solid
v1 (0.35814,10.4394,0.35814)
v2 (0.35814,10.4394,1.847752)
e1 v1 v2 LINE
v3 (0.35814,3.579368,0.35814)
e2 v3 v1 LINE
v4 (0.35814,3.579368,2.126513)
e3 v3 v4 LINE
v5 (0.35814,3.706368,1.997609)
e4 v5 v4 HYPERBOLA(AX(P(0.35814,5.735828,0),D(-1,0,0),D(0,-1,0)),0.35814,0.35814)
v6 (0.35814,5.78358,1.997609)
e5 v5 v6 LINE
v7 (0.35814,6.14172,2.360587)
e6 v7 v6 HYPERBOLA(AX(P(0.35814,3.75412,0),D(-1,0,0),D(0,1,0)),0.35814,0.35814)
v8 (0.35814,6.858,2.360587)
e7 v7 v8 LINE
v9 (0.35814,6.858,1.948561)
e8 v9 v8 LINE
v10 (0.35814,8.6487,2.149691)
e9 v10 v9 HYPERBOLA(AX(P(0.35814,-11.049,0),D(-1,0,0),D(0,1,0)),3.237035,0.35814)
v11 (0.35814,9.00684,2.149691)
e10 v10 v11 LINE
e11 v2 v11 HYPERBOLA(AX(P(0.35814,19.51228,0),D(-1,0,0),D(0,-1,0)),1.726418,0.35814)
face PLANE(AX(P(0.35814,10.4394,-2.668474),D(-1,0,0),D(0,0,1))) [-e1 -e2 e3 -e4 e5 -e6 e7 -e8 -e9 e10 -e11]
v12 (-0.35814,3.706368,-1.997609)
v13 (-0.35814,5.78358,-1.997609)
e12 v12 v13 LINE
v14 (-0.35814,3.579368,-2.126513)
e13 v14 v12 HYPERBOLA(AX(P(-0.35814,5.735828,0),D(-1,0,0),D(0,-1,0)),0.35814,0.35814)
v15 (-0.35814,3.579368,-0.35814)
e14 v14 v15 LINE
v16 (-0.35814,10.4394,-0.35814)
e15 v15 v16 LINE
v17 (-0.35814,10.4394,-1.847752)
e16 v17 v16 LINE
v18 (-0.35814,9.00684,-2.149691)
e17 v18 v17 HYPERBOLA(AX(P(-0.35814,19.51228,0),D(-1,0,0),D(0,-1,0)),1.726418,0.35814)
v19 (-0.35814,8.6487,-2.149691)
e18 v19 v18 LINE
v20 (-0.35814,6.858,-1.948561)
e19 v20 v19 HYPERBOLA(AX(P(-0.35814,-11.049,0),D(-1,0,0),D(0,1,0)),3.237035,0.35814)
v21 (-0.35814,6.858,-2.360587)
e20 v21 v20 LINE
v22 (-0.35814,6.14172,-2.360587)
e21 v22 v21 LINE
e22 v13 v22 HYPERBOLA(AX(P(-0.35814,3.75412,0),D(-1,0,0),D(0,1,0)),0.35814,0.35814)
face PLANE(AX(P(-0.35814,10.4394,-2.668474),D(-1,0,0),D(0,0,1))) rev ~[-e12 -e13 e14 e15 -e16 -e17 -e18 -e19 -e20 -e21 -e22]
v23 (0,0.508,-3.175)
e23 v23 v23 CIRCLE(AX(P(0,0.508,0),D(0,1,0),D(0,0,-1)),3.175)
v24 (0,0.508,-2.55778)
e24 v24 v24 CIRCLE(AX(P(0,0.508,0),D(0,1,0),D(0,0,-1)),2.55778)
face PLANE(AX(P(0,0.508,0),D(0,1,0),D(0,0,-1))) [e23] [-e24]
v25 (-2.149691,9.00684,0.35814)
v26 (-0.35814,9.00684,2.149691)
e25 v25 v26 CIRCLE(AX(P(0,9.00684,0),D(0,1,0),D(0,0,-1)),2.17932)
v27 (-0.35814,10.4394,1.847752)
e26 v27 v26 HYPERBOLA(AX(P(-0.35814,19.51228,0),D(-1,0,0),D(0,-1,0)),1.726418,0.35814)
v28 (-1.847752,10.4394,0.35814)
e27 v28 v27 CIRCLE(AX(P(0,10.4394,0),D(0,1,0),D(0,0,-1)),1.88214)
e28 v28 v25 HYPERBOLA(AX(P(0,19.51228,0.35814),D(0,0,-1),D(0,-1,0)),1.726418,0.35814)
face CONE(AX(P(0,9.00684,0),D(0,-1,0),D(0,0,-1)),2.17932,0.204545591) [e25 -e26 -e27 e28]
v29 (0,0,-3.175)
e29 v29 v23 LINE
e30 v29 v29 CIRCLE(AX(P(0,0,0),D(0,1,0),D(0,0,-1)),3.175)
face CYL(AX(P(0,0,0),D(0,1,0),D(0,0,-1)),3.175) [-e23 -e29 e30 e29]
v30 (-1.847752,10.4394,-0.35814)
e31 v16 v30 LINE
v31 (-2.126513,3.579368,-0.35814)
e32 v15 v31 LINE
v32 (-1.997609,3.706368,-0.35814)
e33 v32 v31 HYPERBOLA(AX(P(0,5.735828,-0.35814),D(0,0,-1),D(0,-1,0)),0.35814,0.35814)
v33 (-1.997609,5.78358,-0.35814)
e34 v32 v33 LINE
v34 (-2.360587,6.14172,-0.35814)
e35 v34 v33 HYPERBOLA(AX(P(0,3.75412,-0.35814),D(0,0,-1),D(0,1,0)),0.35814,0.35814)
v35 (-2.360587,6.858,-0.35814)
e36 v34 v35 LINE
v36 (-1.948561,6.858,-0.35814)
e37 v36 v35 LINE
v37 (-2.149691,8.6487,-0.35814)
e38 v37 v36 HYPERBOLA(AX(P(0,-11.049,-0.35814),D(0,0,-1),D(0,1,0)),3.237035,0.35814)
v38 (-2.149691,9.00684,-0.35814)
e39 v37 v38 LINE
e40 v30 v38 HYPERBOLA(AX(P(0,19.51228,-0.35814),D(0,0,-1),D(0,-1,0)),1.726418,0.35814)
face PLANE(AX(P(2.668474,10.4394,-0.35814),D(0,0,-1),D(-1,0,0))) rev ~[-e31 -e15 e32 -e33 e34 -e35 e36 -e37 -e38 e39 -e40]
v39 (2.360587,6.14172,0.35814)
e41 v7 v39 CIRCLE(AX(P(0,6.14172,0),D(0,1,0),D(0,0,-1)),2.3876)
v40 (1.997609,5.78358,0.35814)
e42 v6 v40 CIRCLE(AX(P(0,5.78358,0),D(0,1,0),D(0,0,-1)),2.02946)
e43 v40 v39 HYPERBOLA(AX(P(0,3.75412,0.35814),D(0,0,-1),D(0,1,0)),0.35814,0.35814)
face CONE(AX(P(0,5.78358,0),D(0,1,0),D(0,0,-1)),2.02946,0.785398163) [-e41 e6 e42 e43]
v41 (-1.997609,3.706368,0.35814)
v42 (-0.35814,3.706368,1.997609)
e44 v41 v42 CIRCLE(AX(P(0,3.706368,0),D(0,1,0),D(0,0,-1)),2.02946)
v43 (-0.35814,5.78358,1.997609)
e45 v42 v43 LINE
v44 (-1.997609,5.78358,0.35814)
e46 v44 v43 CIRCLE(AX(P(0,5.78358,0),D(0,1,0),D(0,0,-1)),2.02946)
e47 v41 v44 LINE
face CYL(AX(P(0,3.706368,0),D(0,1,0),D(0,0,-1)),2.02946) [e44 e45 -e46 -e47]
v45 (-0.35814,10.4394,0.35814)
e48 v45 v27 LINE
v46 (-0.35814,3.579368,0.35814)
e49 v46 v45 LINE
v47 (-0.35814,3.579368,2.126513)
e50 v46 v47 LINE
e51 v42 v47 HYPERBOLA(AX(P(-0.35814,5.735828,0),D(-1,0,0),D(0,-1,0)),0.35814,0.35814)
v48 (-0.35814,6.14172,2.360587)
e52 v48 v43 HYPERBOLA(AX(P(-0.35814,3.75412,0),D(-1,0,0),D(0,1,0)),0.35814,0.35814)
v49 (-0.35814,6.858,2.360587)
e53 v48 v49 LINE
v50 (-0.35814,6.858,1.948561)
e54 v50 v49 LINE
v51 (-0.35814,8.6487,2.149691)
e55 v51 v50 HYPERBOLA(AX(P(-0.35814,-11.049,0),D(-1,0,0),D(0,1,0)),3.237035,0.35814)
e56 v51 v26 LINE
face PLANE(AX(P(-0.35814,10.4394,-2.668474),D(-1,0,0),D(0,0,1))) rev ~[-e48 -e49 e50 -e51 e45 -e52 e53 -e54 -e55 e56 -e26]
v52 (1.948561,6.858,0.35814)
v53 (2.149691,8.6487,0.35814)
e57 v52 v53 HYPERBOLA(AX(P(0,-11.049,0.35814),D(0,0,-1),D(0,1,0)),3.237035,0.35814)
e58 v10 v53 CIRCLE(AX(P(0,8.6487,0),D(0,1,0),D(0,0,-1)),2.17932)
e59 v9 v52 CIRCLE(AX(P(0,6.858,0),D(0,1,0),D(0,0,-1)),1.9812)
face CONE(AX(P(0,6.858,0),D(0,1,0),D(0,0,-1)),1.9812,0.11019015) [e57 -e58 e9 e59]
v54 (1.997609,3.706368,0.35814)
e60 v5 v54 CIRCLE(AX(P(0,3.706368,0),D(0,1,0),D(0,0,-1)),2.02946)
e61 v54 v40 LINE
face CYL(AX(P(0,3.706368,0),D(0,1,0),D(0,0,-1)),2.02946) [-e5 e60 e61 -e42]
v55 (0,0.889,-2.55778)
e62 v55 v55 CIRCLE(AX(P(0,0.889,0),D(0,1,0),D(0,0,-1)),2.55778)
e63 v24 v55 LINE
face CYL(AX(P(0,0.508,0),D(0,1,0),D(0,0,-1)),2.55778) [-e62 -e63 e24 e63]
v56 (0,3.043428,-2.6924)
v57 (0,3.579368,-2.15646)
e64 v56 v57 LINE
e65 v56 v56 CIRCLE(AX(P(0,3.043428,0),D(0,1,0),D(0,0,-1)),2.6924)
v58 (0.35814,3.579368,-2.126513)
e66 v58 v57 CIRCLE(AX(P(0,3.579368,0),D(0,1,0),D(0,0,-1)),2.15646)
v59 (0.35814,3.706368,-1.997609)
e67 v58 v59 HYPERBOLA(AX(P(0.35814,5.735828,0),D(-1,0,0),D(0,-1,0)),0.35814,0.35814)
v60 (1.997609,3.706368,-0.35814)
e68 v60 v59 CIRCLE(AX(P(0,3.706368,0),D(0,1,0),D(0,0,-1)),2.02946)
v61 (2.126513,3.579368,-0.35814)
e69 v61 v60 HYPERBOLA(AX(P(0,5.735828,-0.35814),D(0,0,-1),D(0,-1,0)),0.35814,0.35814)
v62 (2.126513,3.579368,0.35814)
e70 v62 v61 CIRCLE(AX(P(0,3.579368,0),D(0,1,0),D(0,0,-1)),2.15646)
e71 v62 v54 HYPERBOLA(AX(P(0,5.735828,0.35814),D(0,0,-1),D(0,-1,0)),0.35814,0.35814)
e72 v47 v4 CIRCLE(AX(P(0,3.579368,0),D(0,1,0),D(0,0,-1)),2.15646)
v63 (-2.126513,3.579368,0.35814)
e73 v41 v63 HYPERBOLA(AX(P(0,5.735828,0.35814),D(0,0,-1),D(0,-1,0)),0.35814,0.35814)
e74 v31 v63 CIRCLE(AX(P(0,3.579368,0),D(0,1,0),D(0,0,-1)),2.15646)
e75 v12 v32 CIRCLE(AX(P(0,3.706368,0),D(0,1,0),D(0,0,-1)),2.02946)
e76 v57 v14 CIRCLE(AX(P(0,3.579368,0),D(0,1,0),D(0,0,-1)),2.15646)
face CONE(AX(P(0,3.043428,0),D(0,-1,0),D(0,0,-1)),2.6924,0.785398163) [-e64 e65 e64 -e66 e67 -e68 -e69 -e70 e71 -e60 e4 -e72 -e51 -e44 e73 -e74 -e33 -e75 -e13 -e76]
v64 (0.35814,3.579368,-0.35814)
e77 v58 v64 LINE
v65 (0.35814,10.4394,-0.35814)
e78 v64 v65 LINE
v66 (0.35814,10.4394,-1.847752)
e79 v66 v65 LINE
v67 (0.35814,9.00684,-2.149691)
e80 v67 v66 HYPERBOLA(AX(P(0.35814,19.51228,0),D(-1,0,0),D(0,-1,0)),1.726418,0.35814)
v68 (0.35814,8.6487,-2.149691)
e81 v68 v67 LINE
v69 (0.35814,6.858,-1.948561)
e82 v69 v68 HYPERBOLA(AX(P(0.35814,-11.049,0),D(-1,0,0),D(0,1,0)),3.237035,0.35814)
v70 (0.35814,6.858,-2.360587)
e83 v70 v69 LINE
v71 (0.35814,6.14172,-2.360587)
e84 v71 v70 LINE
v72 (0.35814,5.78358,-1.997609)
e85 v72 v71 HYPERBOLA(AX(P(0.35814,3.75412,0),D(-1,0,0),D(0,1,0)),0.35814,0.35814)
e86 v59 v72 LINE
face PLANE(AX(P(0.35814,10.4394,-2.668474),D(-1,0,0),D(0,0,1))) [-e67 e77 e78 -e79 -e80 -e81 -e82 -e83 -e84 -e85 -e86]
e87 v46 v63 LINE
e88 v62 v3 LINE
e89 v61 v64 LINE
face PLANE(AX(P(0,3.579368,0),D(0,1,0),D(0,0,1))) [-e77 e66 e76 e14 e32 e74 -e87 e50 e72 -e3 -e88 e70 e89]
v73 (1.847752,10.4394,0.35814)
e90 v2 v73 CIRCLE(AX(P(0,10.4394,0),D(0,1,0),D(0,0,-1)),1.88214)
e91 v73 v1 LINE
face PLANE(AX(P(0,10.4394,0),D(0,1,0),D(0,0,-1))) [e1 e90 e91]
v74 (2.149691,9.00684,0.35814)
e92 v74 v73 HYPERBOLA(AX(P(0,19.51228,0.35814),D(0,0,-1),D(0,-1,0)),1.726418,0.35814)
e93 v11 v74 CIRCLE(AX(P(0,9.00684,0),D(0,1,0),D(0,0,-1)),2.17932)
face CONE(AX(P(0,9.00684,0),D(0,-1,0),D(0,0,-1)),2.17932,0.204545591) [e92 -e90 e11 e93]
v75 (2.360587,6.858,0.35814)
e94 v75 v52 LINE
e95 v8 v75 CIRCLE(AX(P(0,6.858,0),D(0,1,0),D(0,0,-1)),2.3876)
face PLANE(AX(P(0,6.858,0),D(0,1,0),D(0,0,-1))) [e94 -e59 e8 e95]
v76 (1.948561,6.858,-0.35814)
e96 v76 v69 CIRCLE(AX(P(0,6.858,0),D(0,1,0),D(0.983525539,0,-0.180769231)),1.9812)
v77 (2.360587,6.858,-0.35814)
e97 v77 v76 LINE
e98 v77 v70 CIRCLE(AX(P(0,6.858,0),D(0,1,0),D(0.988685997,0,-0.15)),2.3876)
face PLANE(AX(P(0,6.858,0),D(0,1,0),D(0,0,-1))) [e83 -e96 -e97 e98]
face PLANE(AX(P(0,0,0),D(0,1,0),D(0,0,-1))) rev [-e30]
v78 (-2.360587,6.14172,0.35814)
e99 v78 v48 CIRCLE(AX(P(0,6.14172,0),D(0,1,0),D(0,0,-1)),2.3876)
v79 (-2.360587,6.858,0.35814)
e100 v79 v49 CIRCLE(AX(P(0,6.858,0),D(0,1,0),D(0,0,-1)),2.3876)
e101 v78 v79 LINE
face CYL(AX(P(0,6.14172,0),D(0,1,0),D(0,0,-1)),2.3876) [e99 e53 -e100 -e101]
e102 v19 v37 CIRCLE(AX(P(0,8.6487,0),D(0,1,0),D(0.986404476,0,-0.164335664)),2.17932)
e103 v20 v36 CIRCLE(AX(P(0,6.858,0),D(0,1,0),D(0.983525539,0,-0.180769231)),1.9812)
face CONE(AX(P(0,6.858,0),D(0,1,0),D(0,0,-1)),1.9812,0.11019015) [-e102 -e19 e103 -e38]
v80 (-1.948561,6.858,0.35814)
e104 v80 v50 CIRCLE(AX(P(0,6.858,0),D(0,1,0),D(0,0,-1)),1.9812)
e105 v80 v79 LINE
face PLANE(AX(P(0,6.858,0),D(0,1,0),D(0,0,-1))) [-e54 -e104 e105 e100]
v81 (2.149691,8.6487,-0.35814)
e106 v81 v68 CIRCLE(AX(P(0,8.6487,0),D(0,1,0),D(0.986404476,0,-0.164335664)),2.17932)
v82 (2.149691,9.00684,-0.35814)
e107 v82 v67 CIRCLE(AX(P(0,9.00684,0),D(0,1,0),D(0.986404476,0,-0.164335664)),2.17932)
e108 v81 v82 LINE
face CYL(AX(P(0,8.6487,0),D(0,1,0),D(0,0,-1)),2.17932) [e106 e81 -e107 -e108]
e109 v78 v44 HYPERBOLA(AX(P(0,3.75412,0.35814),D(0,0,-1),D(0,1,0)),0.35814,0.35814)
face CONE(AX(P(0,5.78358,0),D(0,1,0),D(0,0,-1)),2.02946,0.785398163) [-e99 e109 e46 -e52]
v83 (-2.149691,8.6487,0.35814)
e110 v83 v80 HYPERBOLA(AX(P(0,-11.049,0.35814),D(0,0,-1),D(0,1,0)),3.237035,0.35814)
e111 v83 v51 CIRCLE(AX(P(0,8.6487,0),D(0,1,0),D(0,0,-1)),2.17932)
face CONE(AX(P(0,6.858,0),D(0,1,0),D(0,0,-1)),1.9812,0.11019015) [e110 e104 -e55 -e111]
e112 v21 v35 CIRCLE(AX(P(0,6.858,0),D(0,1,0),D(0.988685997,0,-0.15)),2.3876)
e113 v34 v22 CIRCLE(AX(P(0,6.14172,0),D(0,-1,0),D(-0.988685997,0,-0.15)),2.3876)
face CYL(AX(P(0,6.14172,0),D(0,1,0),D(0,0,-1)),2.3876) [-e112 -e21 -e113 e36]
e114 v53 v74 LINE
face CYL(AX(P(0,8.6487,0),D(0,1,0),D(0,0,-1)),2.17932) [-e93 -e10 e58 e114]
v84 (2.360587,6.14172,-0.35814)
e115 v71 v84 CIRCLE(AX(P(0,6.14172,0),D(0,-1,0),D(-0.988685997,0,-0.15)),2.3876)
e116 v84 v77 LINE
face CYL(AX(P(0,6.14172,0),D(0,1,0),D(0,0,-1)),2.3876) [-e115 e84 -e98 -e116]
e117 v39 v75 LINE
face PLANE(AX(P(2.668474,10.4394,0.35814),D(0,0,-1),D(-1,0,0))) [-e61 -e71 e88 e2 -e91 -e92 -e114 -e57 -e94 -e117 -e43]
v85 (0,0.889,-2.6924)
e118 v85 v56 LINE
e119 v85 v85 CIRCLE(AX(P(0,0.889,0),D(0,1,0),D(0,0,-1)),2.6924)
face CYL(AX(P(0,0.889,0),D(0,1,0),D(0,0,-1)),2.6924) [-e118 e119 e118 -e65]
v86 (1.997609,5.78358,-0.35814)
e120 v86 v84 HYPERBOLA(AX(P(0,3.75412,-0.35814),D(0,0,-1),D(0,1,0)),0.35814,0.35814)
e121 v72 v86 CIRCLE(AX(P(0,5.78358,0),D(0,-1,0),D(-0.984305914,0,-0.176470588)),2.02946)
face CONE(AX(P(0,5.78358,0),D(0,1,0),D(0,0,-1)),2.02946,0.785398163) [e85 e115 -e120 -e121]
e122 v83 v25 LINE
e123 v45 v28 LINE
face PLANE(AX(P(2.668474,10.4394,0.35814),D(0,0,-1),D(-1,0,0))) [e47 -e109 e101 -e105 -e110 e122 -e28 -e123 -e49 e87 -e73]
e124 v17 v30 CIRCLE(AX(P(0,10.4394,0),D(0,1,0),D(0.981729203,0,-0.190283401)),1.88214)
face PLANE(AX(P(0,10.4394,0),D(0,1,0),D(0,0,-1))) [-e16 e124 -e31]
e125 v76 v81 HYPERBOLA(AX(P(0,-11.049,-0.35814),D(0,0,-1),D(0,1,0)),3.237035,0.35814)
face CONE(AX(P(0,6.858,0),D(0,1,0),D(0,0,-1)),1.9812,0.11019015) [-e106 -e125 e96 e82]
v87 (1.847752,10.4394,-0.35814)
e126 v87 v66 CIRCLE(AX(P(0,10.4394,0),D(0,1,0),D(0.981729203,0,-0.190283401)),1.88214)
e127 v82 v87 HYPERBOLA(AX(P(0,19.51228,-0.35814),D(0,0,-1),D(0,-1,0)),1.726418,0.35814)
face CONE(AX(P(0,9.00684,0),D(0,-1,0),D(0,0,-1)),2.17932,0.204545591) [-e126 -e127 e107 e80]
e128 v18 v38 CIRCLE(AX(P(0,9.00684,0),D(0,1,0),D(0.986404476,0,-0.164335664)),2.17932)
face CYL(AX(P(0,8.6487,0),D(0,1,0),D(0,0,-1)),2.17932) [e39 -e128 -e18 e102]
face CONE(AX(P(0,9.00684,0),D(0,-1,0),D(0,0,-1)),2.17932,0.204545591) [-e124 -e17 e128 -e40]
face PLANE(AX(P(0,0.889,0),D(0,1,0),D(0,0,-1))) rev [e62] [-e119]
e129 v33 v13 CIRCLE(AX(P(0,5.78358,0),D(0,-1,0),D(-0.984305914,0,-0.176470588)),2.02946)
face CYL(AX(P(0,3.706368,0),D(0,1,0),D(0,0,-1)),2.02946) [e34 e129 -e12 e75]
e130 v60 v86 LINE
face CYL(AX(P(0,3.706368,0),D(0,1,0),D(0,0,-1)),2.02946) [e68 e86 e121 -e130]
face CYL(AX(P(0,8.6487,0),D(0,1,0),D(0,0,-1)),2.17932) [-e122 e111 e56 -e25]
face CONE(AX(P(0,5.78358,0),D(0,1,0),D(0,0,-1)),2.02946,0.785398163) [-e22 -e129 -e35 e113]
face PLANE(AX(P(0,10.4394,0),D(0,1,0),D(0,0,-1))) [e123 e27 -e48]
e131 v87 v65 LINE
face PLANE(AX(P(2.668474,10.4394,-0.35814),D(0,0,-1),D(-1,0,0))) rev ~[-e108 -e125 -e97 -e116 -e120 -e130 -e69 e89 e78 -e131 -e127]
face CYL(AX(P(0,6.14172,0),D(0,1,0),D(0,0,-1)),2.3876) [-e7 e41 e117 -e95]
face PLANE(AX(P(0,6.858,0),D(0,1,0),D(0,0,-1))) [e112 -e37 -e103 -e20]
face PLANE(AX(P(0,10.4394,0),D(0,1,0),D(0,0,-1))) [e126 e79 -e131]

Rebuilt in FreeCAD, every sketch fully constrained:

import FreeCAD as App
import Part
import Sketcher
from FreeCAD import Vector
Q = App.Units.Quantity

doc = App.newDocument("Part")
body = doc.addObject("PartDesign::Body", "Body")

# Sketch on XY plane
sketch1 = body.newObject("Sketcher::SketchObject", "Sketch")
sketch1.AttachmentSupport = (doc.getObject("XY_Plane"), [""])
sketch1.MapMode = "FlatFace"
sketch1.addGeometry(Part.LineSegment(Vector(2.56, 0.51, 0), Vector(2.56, 0.89, 0)), False)
sketch1.addGeometry(Part.LineSegment(Vector(2.56, 0.89, 0), Vector(2.69, 0.89, 0)), False)
sketch1.addGeometry(Part.LineSegment(Vector(2.69, 0.89, 0), Vector(2.69, 3.04, 0)), False)
sketch1.addGeometry(Part.LineSegment(Vector(2.69, 3.04, 0), Vector(2.03, 3.71, 0)), False)
sketch1.addGeometry(Part.LineSegment(Vector(2.03, 3.71, 0), Vector(2.03, 5.78, 0)), False)
sketch1.addGeometry(Part.LineSegment(Vector(2.03, 5.78, 0), Vector(2.39, 6.14, 0)), False)
sketch1.addGeometry(Part.LineSegment(Vector(2.39, 6.14, 0), Vector(2.39, 6.86, 0)), False)
sketch1.addGeometry(Part.LineSegment(Vector(2.39, 6.86, 0), Vector(1.98, 6.86, 0)), False)
sketch1.addGeometry(Part.LineSegment(Vector(1.98, 6.86, 0), Vector(2.18, 8.65, 0)), False)
sketch1.addGeometry(Part.LineSegment(Vector(2.18, 8.65, 0), Vector(2.18, 9.01, 0)), False)
sketch1.addGeometry(Part.LineSegment(Vector(2.18, 9.01, 0), Vector(1.88, 10.44, 0)), False)
sketch1.addGeometry(Part.LineSegment(Vector(1.88, 10.44, 0), Vector(0, 10.44, 0)), False)
sketch1.addGeometry(Part.LineSegment(Vector(0, 10.44, 0), Vector(0, 0, 0)), False)
sketch1.addGeometry(Part.LineSegment(Vector(0, 0, 0), Vector(3.17, 0, 0)), False)
sketch1.addGeometry(Part.LineSegment(Vector(3.17, 0, 0), Vector(3.17, 0.51, 0)), False)
sketch1.addGeometry(Part.LineSegment(Vector(3.17, 0.51, 0), Vector(2.56, 0.51, 0)), False)
sketch1.addConstraint(Sketcher.Constraint("Coincident", 0, 2, 1, 1))
sketch1.addConstraint(Sketcher.Constraint("Coincident", 1, 2, 2, 1))
sketch1.addConstraint(Sketcher.Constraint("Coincident", 2, 2, 3, 1))
sketch1.addConstraint(Sketcher.Constraint("Coincident", 3, 2, 4, 1))
sketch1.addConstraint(Sketcher.Constraint("Coincident", 4, 2, 5, 1))
sketch1.addConstraint(Sketcher.Constraint("Coincident", 5, 2, 6, 1))
sketch1.addConstraint(Sketcher.Constraint("Coincident", 6, 2, 7, 1))
sketch1.addConstraint(Sketcher.Constraint("Coincident", 7, 2, 8, 1))
sketch1.addConstraint(Sketcher.Constraint("Coincident", 8, 2, 9, 1))
sketch1.addConstraint(Sketcher.Constraint("Coincident", 9, 2, 10, 1))
sketch1.addConstraint(Sketcher.Constraint("Coincident", 10, 2, 11, 1))
sketch1.addConstraint(Sketcher.Constraint("Coincident", 11, 2, 12, 1))
sketch1.addConstraint(Sketcher.Constraint("Coincident", 12, 2, 13, 1))
sketch1.addConstraint(Sketcher.Constraint("Coincident", 13, 2, 14, 1))
sketch1.addConstraint(Sketcher.Constraint("Coincident", 14, 2, 15, 1))
sketch1.addConstraint(Sketcher.Constraint("Coincident", 15, 2, 0, 1))
sketch1.addConstraint(Sketcher.Constraint("Vertical", 0))
sketch1.addConstraint(Sketcher.Constraint("Horizontal", 1))
sketch1.addConstraint(Sketcher.Constraint("Vertical", 2))
sketch1.addConstraint(Sketcher.Constraint("Vertical", 4))
sketch1.addConstraint(Sketcher.Constraint("Vertical", 6))
sketch1.addConstraint(Sketcher.Constraint("Horizontal", 7))
sketch1.addConstraint(Sketcher.Constraint("Vertical", 9))
sketch1.addConstraint(Sketcher.Constraint("Horizontal", 11))
sketch1.addConstraint(Sketcher.Constraint("Vertical", 12))
sketch1.addConstraint(Sketcher.Constraint("Horizontal", 13))
sketch1.addConstraint(Sketcher.Constraint("Vertical", 14))
sketch1.addConstraint(Sketcher.Constraint("Horizontal", 15))
sketch1.addConstraint(Sketcher.Constraint("Coincident", 12, 2, -1, 1))
sketch1.addConstraint(Sketcher.Constraint("Perpendicular", 3, 5))
sketch1.addConstraint(Sketcher.Constraint("Angle", 3, Q("135 deg")))
sketch1.addConstraint(Sketcher.Constraint("DistanceY", 14, 1, 14, 2, Q("0.02 in")))
sketch1.addConstraint(Sketcher.Constraint("DistanceX", 7, 2, 7, 1, Q("0.016 in")))
sketch1.addConstraint(Sketcher.Constraint("DistanceX", 13, 1, 13, 2, Q("0.125 in")))
sketch1.addConstraint(Sketcher.Constraint("DistanceY", 0, 1, 0, 2, Q("0.015 in")))
sketch1.addConstraint(Sketcher.Constraint("DistanceY", 12, 2, 12, 1, Q("0.411 in")))
sketch1.addConstraint(Sketcher.Constraint("DistanceY", -1, 1, 6, 2, Q("0.27 in")))
sketch1.addConstraint(Sketcher.Constraint("DistanceX", 1, 1, 1, 2, Q("0.0053 in")))
sketch1.addConstraint(Sketcher.Constraint("DistanceX", 11, 2, 11, 1, Q("0.0741 in")))
sketch1.addConstraint(Sketcher.Constraint("DistanceX", 15, 2, 15, 1, Q("0.0243 in")))
sketch1.addConstraint(Sketcher.Constraint("DistanceY", 6, 1, 6, 2, Q("0.0282 in")))
sketch1.addConstraint(Sketcher.Constraint("DistanceY", 9, 1, 9, 2, Q("0.0141 in")))
sketch1.addConstraint(Sketcher.Constraint("DistanceX", -1, 1, 5, 2, Q("0.094 in")))
sketch1.addConstraint(Sketcher.Constraint("DistanceX", -1, 1, 3, 2, Q("0.0799 in")))
sketch1.addConstraint(Sketcher.Constraint("DistanceX", -1, 1, 8, 2, Q("0.0858 in")))
sketch1.addConstraint(Sketcher.Constraint("DistanceY", -1, 1, 8, 2, Q("0.3405 in")))
sketch1.addConstraint(Sketcher.Constraint("DistanceY", 2, 1, 2, 2, Q("2.154428 mm")))
revolution = body.newObject("PartDesign::Revolution", "Revolution")
revolution.Profile = sketch1
revolution.ReferenceAxis = (sketch1, ["V_Axis"])
revolution.Angle = 360

# Sketch on XZ plane
sketch2 = body.newObject("Sketcher::SketchObject", "Sketch001")
sketch2.AttachmentSupport = (doc.getObject("XZ_Plane"), [""])
sketch2.MapMode = "FlatFace"
sketch2.AttachmentOffset = App.Placement(Vector(0, 0, -0.411 * 25.4), App.Rotation())
sketch2.addGeometry(Part.LineSegment(Vector(2.7, 0.4, 0), Vector(2.7, -0.4, 0)), False)
sketch2.addGeometry(Part.LineSegment(Vector(2.7, -0.4, 0), Vector(-2.7, -0.4, 0)), False)
sketch2.addGeometry(Part.LineSegment(Vector(-2.7, -0.4, 0), Vector(-2.7, 0.4, 0)), False)
sketch2.addGeometry(Part.LineSegment(Vector(-2.7, 0.4, 0), Vector(2.7, 0.4, 0)), False)
sketch2.addConstraint(Sketcher.Constraint("Coincident", 0, 2, 1, 1))
sketch2.addConstraint(Sketcher.Constraint("Coincident", 1, 2, 2, 1))
sketch2.addConstraint(Sketcher.Constraint("Coincident", 2, 2, 3, 1))
sketch2.addConstraint(Sketcher.Constraint("Coincident", 3, 2, 0, 1))
sketch2.addConstraint(Sketcher.Constraint("Vertical", 0))
sketch2.addConstraint(Sketcher.Constraint("Horizontal", 1))
sketch2.addConstraint(Sketcher.Constraint("Vertical", 2))
sketch2.addConstraint(Sketcher.Constraint("Horizontal", 3))
sketch2.addConstraint(Sketcher.Constraint("Symmetric", 0, 2, 2, 2, -1, 1))
sketch2.addConstraint(Sketcher.Constraint("DistanceY", 0, 2, 0, 1, Q("0.0282 in")))
sketch2.addConstraint(Sketcher.Constraint("DistanceX", 1, 2, 1, 1, Q("5.336948 mm")))
pocket1 = body.newObject("PartDesign::Pocket", "Pocket")
pocket1.Profile = sketch2
pocket1.Length = 6.860032
pocket1.Reversed = True
doc.recompute()

polarpattern = body.newObject("PartDesign::PolarPattern", "PolarPattern")
polarpattern.Originals = [pocket1]
polarpattern.Axis = (doc.getObject("Y_Axis"), [""])
polarpattern.Angle = 90
polarpattern.Occurrences = 2
body.Tip = polarpattern

doc.recompute()
